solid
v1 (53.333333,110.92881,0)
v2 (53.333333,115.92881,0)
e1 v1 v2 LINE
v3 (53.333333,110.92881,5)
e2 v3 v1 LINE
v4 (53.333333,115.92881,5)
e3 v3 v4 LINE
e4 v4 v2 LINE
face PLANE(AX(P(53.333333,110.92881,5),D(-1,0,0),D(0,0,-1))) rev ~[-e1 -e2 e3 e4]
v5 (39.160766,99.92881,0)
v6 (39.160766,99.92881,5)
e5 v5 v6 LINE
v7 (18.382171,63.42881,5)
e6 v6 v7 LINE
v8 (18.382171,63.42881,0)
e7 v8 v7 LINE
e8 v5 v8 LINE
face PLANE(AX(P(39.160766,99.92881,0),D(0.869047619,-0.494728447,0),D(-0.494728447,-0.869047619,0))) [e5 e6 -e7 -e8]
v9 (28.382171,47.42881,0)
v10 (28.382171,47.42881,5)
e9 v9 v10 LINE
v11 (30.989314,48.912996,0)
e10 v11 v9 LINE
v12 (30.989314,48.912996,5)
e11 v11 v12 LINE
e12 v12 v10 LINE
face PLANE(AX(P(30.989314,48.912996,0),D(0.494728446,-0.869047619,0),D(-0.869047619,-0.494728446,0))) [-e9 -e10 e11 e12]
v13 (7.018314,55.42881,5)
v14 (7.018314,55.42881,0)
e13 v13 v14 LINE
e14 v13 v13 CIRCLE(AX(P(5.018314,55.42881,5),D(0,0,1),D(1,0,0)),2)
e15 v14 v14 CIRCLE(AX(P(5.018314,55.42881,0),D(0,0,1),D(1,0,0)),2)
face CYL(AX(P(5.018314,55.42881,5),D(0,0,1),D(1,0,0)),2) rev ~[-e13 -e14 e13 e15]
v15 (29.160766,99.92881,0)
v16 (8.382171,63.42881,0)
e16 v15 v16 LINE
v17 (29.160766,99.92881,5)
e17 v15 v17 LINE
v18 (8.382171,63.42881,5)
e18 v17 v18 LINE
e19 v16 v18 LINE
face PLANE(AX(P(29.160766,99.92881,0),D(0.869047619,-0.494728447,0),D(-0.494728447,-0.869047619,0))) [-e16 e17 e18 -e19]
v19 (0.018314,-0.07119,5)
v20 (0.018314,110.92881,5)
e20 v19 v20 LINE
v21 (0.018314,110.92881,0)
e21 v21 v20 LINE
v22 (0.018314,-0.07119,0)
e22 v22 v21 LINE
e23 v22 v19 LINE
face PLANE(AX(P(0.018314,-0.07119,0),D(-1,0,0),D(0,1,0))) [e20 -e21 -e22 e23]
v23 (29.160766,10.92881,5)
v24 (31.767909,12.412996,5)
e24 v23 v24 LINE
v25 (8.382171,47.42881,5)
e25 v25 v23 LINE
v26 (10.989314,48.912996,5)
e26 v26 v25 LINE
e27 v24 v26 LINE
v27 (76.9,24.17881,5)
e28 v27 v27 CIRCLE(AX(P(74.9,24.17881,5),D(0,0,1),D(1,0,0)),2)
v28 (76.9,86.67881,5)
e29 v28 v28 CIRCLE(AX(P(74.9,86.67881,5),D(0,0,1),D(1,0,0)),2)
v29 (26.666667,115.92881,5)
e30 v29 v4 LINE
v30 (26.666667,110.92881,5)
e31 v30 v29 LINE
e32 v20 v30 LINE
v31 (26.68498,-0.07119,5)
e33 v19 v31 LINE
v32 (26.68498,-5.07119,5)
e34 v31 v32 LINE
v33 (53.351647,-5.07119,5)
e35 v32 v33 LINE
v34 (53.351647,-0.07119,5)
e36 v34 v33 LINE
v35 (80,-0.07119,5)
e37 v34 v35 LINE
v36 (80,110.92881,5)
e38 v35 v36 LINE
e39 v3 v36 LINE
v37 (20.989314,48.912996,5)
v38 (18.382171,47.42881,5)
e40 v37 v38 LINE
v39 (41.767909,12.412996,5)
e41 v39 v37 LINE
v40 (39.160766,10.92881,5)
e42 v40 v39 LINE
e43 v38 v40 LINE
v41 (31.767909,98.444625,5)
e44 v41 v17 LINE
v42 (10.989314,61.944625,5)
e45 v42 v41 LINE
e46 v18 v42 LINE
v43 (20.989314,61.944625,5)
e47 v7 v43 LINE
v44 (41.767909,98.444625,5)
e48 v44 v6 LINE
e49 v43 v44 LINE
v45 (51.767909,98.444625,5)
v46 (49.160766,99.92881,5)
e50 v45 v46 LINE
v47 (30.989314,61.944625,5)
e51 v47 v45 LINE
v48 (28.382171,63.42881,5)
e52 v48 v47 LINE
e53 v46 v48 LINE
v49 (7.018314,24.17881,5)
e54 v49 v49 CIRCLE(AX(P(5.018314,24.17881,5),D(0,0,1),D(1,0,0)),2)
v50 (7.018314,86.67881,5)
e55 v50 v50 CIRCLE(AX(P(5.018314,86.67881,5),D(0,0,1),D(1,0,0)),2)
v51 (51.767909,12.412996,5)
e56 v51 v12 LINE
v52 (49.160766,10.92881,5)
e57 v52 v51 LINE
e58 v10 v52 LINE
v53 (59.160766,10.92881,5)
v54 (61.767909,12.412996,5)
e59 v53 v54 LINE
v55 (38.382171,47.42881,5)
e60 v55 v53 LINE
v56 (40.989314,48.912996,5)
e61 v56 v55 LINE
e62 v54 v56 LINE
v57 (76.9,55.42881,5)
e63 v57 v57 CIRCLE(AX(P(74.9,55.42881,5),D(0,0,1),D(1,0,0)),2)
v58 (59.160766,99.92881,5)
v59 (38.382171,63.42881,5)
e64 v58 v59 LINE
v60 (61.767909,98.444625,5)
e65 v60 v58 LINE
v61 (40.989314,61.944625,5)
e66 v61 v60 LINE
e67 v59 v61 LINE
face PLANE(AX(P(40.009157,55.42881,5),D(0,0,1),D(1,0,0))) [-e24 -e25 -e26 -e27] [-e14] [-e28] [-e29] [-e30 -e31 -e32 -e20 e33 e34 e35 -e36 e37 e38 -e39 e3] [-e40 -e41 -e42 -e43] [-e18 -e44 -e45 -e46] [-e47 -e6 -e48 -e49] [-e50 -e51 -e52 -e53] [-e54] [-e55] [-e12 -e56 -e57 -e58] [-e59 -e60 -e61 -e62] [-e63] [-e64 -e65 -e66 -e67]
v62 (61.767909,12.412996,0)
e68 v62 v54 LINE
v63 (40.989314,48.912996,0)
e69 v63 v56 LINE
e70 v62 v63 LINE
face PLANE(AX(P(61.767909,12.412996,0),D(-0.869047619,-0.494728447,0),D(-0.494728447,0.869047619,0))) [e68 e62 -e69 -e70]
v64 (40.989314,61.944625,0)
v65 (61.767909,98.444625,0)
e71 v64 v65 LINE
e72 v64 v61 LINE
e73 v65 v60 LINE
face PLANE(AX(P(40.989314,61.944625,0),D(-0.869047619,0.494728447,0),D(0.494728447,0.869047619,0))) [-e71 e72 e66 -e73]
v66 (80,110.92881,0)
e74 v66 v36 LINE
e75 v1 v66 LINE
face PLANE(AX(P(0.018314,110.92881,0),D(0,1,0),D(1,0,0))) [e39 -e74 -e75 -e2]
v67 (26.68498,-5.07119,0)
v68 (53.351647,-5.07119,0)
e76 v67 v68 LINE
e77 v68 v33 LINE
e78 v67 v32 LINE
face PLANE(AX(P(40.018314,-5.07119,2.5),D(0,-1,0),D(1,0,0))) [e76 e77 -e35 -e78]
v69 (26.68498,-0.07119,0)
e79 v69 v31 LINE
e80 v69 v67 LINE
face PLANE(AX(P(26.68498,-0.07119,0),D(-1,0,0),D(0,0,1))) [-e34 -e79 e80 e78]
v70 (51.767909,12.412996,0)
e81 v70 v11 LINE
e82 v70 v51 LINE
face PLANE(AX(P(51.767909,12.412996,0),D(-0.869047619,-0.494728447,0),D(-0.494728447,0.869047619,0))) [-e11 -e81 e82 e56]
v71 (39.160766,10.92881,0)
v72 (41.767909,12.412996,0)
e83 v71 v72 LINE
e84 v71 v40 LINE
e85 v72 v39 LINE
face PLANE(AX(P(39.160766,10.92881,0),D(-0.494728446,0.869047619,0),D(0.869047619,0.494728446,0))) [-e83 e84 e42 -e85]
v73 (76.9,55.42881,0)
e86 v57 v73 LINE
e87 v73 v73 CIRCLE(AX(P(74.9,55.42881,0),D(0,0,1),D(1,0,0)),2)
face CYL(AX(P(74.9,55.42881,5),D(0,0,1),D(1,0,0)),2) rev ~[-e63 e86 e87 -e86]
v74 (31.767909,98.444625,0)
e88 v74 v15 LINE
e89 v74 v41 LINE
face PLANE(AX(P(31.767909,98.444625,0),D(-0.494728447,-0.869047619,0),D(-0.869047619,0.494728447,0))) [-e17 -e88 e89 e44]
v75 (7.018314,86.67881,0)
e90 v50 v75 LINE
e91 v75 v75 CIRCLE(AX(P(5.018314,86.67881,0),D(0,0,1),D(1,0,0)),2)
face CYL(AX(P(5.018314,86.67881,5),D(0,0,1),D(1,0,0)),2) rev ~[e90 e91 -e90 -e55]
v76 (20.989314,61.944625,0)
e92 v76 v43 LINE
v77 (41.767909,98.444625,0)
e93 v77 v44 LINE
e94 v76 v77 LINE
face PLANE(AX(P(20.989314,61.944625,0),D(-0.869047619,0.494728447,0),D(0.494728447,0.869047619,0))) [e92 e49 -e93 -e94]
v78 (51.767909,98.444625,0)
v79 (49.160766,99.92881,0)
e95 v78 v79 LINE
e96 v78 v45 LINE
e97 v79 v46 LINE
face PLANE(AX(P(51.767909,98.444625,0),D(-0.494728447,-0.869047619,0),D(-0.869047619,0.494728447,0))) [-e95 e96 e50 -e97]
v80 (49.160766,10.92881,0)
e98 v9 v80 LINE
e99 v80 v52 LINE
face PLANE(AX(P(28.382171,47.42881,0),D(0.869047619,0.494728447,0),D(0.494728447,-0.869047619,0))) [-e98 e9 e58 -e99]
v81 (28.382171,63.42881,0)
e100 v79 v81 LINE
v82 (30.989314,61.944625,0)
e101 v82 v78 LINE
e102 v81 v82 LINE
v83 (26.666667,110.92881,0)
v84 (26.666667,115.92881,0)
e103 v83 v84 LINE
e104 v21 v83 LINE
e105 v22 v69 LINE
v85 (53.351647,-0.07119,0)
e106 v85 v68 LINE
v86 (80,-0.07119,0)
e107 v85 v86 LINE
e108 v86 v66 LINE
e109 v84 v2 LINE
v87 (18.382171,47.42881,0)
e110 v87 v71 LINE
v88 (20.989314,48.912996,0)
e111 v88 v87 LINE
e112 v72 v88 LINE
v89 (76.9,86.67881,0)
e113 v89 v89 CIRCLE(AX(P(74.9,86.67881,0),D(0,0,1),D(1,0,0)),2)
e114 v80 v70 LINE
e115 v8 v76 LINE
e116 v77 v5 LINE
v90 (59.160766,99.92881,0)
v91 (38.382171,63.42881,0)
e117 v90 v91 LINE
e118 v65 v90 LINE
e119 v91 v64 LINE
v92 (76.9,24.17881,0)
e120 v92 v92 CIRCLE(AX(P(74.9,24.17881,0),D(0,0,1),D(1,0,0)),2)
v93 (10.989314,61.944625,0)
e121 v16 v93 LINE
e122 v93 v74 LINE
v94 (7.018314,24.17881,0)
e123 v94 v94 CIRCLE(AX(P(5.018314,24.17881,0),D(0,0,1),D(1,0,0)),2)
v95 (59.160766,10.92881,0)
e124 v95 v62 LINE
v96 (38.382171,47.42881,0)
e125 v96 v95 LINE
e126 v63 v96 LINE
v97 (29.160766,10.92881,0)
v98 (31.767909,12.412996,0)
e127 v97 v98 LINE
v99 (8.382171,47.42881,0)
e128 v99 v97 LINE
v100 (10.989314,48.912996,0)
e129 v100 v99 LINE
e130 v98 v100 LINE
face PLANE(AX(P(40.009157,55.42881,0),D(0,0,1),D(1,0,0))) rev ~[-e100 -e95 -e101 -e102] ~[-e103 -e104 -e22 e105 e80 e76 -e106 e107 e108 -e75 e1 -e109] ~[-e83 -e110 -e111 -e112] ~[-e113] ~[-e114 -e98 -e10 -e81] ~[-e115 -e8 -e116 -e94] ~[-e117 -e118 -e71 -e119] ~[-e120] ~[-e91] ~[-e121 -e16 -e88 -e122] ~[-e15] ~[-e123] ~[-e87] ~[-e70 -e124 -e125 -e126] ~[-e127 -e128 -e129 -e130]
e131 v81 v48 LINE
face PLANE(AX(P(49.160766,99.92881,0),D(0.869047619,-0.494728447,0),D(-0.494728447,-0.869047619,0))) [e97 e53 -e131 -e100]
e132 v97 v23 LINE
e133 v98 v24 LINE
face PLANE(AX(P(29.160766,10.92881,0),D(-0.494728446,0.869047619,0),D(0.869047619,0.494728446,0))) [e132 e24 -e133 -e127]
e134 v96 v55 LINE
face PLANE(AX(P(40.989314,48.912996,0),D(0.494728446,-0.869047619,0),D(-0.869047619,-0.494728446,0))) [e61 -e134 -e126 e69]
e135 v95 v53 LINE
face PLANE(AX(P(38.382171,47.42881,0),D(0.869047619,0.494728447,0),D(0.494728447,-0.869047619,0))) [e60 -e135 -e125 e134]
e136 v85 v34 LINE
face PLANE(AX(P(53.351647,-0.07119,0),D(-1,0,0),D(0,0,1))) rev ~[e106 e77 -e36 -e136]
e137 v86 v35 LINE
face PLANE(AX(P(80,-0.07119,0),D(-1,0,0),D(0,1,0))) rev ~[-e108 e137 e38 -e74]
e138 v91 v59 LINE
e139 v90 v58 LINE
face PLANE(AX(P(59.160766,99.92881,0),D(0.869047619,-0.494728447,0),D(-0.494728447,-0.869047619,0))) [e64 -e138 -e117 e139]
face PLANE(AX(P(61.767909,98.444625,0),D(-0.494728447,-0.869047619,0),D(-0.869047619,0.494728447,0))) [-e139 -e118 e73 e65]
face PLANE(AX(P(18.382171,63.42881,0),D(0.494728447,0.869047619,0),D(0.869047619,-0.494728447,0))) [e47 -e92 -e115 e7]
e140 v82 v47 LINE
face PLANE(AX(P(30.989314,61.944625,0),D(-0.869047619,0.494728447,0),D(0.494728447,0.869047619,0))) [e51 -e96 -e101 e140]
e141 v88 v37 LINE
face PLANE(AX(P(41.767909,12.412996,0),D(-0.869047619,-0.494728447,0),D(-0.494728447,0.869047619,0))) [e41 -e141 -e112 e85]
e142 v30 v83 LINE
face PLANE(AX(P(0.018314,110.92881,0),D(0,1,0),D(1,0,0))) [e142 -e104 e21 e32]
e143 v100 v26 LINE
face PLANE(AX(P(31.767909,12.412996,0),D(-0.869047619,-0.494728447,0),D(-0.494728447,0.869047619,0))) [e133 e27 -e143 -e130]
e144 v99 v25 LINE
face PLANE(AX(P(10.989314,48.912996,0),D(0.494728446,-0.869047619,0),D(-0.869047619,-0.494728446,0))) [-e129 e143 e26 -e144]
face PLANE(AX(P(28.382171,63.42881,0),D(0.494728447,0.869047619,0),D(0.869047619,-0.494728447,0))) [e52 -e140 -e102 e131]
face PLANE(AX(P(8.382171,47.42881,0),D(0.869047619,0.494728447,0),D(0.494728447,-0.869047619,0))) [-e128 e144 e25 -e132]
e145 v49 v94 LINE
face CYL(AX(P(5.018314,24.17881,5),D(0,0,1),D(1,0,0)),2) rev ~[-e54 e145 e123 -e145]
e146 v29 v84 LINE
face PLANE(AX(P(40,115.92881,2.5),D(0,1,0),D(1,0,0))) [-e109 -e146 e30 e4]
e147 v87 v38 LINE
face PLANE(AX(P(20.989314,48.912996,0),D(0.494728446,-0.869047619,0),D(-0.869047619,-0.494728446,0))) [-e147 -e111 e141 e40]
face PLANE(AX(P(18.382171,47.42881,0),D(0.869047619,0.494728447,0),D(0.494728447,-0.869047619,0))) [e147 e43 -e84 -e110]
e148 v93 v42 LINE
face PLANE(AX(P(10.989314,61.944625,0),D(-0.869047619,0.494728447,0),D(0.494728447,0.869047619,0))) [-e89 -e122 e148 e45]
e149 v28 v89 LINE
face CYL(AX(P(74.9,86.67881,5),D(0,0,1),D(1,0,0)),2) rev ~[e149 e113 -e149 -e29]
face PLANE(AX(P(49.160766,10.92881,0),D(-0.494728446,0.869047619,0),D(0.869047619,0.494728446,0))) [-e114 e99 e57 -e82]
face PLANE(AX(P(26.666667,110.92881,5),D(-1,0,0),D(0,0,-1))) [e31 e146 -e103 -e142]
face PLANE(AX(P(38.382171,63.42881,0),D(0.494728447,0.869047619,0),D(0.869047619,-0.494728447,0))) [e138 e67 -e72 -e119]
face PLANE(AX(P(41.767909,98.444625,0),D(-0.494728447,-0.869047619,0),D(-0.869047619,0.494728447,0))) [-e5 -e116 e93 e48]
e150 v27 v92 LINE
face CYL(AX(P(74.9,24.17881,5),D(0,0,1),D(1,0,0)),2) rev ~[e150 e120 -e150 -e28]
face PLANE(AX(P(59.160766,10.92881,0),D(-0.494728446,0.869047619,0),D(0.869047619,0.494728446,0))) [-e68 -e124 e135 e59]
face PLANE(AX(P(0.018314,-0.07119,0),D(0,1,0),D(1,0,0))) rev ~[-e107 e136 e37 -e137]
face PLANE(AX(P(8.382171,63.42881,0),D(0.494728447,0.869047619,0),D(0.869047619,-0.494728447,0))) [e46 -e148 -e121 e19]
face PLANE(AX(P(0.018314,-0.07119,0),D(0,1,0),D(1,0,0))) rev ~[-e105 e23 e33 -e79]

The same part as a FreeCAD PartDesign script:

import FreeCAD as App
import Part
import Sketcher

V = App.Vector
Q = App.Units.Quantity


def add_polygon(sketch, points):
    """Adds a closed chain of lines whose ends are joined by coincident constraints."""
    first, n = sketch.GeometryCount, len(points)
    for a, b in zip(points, points[1:] + points[:1]):
        sketch.addGeometry(Part.LineSegment(App.Vector(*a, 0), App.Vector(*b, 0)), False)
    for i in range(n):
        sketch.addConstraint(Sketcher.Constraint("Coincident", first + i, 2, first + (i + 1) % n, 1))

doc = App.newDocument("Part")
body = doc.addObject("PartDesign::Body", "Body")

sketch1 = body.newObject("Sketcher::SketchObject", "Sketch")
sketch1.AttachmentSupport = (doc.getObject("XY_Plane"), [""])
sketch1.MapMode = "FlatFace"
add_polygon(sketch1, [(0, 110.9), (0, -0.1), (80, -0.1), (80, 110.9)])
add_polygon(sketch1, [(31.8, 12.4), (29.2, 10.9), (8.4, 47.4), (11, 48.9)])
add_polygon(sketch1, [(18.4, 47.4), (21, 48.9), (41.8, 12.4), (39.2, 10.9)])
add_polygon(sketch1, [(51.8, 12.4), (49.2, 10.9), (28.4, 47.4), (31, 48.9)])
add_polygon(sketch1, [(38.4, 47.4), (41, 48.9), (61.8, 12.4), (59.2, 10.9)])
add_polygon(sketch1, [(29.2, 99.9), (31.8, 98.4), (11, 61.9), (8.4, 63.4)])
add_polygon(sketch1, [(21, 61.9), (18.4, 63.4), (39.2, 99.9), (41.8, 98.4)])
add_polygon(sketch1, [(49.2, 99.9), (51.8, 98.4), (31, 61.9), (28.4, 63.4)])
add_polygon(sketch1, [(41, 61.9), (38.4, 63.4), (59.2, 99.9), (61.8, 98.4)])
sketch1.addConstraint([
    Sketcher.Constraint("Vertical", 0),
    Sketcher.Constraint("Horizontal", 1),
    Sketcher.Constraint("Vertical", 2),
    Sketcher.Constraint("Horizontal", 3),
    Sketcher.Constraint("Perpendicular", 4, 5),
    Sketcher.Constraint("Perpendicular", 5, 6),
    Sketcher.Constraint("Perpendicular", 6, 7),
    Sketcher.Constraint("Perpendicular", 7, 8),
    Sketcher.Constraint("Perpendicular", 8, 9),
    Sketcher.Constraint("Perpendicular", 9, 10),
    Sketcher.Constraint("Perpendicular", 10, 11),
    Sketcher.Constraint("Perpendicular", 11, 12),
    Sketcher.Constraint("Perpendicular", 12, 13),
    Sketcher.Constraint("Perpendicular", 13, 14),
    Sketcher.Constraint("Perpendicular", 14, 15),
    Sketcher.Constraint("Perpendicular", 15, 16),
    Sketcher.Constraint("Perpendicular", 16, 17),
    Sketcher.Constraint("Perpendicular", 17, 18),
    Sketcher.Constraint("Perpendicular", 18, 19),
    Sketcher.Constraint("Perpendicular", 20, 21),
    Sketcher.Constraint("Perpendicular", 21, 22),
    Sketcher.Constraint("Perpendicular", 22, 23),
    Sketcher.Constraint("Perpendicular", 23, 24),
    Sketcher.Constraint("Perpendicular", 24, 25),
    Sketcher.Constraint("Perpendicular", 25, 26),
    Sketcher.Constraint("Perpendicular", 26, 27),
    Sketcher.Constraint("Perpendicular", 27, 28),
    Sketcher.Constraint("Perpendicular", 28, 29),
    Sketcher.Constraint("Perpendicular", 29, 30),
    Sketcher.Constraint("Perpendicular", 30, 31),
    Sketcher.Constraint("Perpendicular", 31, 32),
    Sketcher.Constraint("Perpendicular", 32, 33),
    Sketcher.Constraint("Perpendicular", 33, 34),
    Sketcher.Constraint("Perpendicular", 34, 35),
    Sketcher.Constraint("Horizontal", 6, 2, 8, 2),
    Sketcher.Constraint("Horizontal", 7, 2, 9, 2),
    Sketcher.Constraint("Horizontal", 4, 2, 10, 2),
    Sketcher.Constraint("Horizontal", 10, 2, 12, 2),
    Sketcher.Constraint("Horizontal", 11, 2, 13, 2),
    Sketcher.Constraint("Horizontal", 8, 2, 14, 2),
    Sketcher.Constraint("Horizontal", 14, 2, 16, 2),
    Sketcher.Constraint("Horizontal", 15, 2, 17, 2),
    Sketcher.Constraint("Horizontal", 12, 2, 18, 2),
    Sketcher.Constraint("Horizontal", 22, 2, 24, 2),
    Sketcher.Constraint("Horizontal", 23, 2, 25, 2),
    Sketcher.Constraint("Horizontal", 20, 2, 26, 2),
    Sketcher.Constraint("Horizontal", 26, 2, 28, 2),
    Sketcher.Constraint("Horizontal", 27, 2, 29, 2),
    Sketcher.Constraint("Horizontal", 24, 2, 30, 2),
    Sketcher.Constraint("Horizontal", 30, 2, 32, 2),
    Sketcher.Constraint("Horizontal", 31, 2, 33, 2),
    Sketcher.Constraint("Horizontal", 28, 2, 34, 2),
    Sketcher.Constraint("Vertical", 7, 2, 20, 2),
    Sketcher.Constraint("Vertical", 6, 2, 21, 2),
    Sketcher.Constraint("Vertical", 5, 2, 22, 2),
    Sketcher.Constraint("Vertical", 11, 2, 24, 2),
    Sketcher.Constraint("Vertical", 15, 2, 28, 2),
    Sketcher.Constraint("Vertical", 19, 2, 32, 2),
    Sketcher.Constraint("Equal", 18, 20),
    Sketcher.Constraint("DistanceY", 0, 2, 0, 1, Q("111 mm")),
    Sketcher.Constraint("Distance", 4, Q("3 mm")),
    Sketcher.Constraint("Distance", 5, Q("42 mm")),
    Sketcher.Constraint("DistanceX", -1, 1, 1, 2, Q("80 mm")),
    Sketcher.Constraint("DistanceY", 0, 2, 4, 2, Q("11 mm")),
    Sketcher.Constraint("DistanceX", 6, 2, 8, 2, Q("10 mm")),
    Sketcher.Constraint("DistanceX", 10, 2, 12, 2, Q("10 mm")),
    Sketcher.Constraint("DistanceX", 14, 2, 16, 2, Q("10 mm")),
    Sketcher.Constraint("DistanceY", 5, 2, 22, 2, Q("16 mm")),
    Sketcher.Constraint("DistanceY", 23, 2, 3, 2, Q("11 mm")),
    Sketcher.Constraint("DistanceX", 0, 2, 6, 2, Q("10.971001 mm")),
    Sketcher.Constraint("DistanceX", 1, 1, 1, 2, Q("79.981686 mm")),
    Sketcher.Constraint("DistanceY", 0, 2, -1, 1, Q("0.07119 mm")),
])
pad1 = body.newObject("PartDesign::Pad", "Pad")
pad1.Profile = sketch1
pad1.Length = 5

sketch2 = body.newObject("Sketcher::SketchObject", "Sketch001")
sketch2.AttachmentSupport = (doc.getObject("XZ_Plane"), [""])
sketch2.MapMode = "FlatFace"
sketch2.AttachmentOffset = App.Placement(V(0, 0, 0.07119), App.Rotation())
add_polygon(sketch2, [(27, 5), (27, 0), (53, 0), (53, 5)])
sketch2.addConstraint([
    Sketcher.Constraint("Vertical", 0),
    Sketcher.Constraint("Horizontal", 1),
    Sketcher.Constraint("Vertical", 2),
    Sketcher.Constraint("Horizontal", 3),
    Sketcher.Constraint("PointOnObject", 0, 2, -1),
    Sketcher.Constraint("DistanceY", 0, 2, 0, 1, Q("5 mm")),
    Sketcher.Constraint("DistanceX", 1, 1, 1, 2, Q("26.666667 mm")),
    Sketcher.Constraint("DistanceX", -1, 1, 0, 2, Q("26.68498 mm")),
])
pad2 = body.newObject("PartDesign::Pad", "Pad001")
pad2.Profile = sketch2
pad2.Length = 5

sketch3 = body.newObject("Sketcher::SketchObject", "Sketch002")
sketch3.AttachmentSupport = (doc.getObject("XZ_Plane"), [""])
sketch3.MapMode = "FlatFace"
sketch3.AttachmentOffset = App.Placement(V(0, 0, -110.92881), App.Rotation())
add_polygon(sketch3, [(27, 0), (27, 5), (53, 5), (53, 0)])
sketch3.addConstraint([
    Sketcher.Constraint("Vertical", 0),
    Sketcher.Constraint("Horizontal", 1),
    Sketcher.Constraint("Vertical", 2),
    Sketcher.Constraint("Horizontal", 3),
    Sketcher.Constraint("PointOnObject", 2, 2, -1),
    Sketcher.Constraint("DistanceY", 0, 1, 0, 2, Q("5 mm")),
    Sketcher.Constraint("DistanceX", 1, 1, 1, 2, Q("26.666667 mm")),
    Sketcher.Constraint("DistanceX", -1, 1, 0, 2, Q("26.666667 mm")),
])
pad3 = body.newObject("PartDesign::Pad", "Pad002")
pad3.Profile = sketch3
pad3.Length = 5
pad3.Reversed = True

sketch4 = body.newObject("Sketcher::SketchObject", "Sketch003")
sketch4.AttachmentSupport = (doc.getObject("XY_Plane"), [""])
sketch4.MapMode = "FlatFace"
sketch4.AttachmentOffset = App.Placement(V(0, 0, 5), App.Rotation())
sketch4.addGeometry([
    Part.Circle(V(74.9, 55.4, 0), V(0, 0, 1), 2),
    Part.Circle(V(74.9, 86.7, 0), V(0, 0, 1), 2),
    Part.Circle(V(74.9, 24.2, 0), V(0, 0, 1), 2),
    Part.Circle(V(5, 55.4, 0), V(0, 0, 1), 2),
    Part.Circle(V(5, 86.7, 0), V(0, 0, 1), 2),
    Part.Circle(V(5, 24.2, 0), V(0, 0, 1), 2),
], False)
sketch4.addConstraint([
    Sketcher.Constraint("Equal", 0, 1),
    Sketcher.Constraint("Equal", 1, 2),
    Sketcher.Constraint("Equal", 2, 3),
    Sketcher.Constraint("Equal", 3, 4),
    Sketcher.Constraint("Equal", 4, 5),
    Sketcher.Constraint("Horizontal", 0, 3, 3, 3),
    Sketcher.Constraint("Horizontal", 1, 3, 4, 3),
    Sketcher.Constraint("Horizontal", 2, 3, 5, 3),
    Sketcher.Constraint("Vertical", 0, 3, 1, 3),
    Sketcher.Constraint("Vertical", 1, 3, 2, 3),
    Sketcher.Constraint("Vertical", 3, 3, 4, 3),
    Sketcher.Constraint("Vertical", 4, 3, 5, 3),
    Sketcher.Constraint("Diameter", 0, Q("4 mm")),
    Sketcher.Constraint("DistanceX", -1, 1, 0, 3, Q("74.9 mm")),
    Sketcher.Constraint("DistanceY", 2, 3, 1, 3, Q("62.5 mm")),
    Sketcher.Constraint("DistanceY", 0, 3, 1, 3, Q("31.25 mm")),
    Sketcher.Constraint("DistanceY", -1, 1, 0, 3, Q("55.42881 mm")),
    Sketcher.Constraint("DistanceX", -1, 1, 3, 3, Q("5.018314 mm")),
])
pocket1 = body.newObject("PartDesign::Pocket", "Pocket")
pocket1.Profile = sketch4
pocket1.Length = 10

doc.recompute()
